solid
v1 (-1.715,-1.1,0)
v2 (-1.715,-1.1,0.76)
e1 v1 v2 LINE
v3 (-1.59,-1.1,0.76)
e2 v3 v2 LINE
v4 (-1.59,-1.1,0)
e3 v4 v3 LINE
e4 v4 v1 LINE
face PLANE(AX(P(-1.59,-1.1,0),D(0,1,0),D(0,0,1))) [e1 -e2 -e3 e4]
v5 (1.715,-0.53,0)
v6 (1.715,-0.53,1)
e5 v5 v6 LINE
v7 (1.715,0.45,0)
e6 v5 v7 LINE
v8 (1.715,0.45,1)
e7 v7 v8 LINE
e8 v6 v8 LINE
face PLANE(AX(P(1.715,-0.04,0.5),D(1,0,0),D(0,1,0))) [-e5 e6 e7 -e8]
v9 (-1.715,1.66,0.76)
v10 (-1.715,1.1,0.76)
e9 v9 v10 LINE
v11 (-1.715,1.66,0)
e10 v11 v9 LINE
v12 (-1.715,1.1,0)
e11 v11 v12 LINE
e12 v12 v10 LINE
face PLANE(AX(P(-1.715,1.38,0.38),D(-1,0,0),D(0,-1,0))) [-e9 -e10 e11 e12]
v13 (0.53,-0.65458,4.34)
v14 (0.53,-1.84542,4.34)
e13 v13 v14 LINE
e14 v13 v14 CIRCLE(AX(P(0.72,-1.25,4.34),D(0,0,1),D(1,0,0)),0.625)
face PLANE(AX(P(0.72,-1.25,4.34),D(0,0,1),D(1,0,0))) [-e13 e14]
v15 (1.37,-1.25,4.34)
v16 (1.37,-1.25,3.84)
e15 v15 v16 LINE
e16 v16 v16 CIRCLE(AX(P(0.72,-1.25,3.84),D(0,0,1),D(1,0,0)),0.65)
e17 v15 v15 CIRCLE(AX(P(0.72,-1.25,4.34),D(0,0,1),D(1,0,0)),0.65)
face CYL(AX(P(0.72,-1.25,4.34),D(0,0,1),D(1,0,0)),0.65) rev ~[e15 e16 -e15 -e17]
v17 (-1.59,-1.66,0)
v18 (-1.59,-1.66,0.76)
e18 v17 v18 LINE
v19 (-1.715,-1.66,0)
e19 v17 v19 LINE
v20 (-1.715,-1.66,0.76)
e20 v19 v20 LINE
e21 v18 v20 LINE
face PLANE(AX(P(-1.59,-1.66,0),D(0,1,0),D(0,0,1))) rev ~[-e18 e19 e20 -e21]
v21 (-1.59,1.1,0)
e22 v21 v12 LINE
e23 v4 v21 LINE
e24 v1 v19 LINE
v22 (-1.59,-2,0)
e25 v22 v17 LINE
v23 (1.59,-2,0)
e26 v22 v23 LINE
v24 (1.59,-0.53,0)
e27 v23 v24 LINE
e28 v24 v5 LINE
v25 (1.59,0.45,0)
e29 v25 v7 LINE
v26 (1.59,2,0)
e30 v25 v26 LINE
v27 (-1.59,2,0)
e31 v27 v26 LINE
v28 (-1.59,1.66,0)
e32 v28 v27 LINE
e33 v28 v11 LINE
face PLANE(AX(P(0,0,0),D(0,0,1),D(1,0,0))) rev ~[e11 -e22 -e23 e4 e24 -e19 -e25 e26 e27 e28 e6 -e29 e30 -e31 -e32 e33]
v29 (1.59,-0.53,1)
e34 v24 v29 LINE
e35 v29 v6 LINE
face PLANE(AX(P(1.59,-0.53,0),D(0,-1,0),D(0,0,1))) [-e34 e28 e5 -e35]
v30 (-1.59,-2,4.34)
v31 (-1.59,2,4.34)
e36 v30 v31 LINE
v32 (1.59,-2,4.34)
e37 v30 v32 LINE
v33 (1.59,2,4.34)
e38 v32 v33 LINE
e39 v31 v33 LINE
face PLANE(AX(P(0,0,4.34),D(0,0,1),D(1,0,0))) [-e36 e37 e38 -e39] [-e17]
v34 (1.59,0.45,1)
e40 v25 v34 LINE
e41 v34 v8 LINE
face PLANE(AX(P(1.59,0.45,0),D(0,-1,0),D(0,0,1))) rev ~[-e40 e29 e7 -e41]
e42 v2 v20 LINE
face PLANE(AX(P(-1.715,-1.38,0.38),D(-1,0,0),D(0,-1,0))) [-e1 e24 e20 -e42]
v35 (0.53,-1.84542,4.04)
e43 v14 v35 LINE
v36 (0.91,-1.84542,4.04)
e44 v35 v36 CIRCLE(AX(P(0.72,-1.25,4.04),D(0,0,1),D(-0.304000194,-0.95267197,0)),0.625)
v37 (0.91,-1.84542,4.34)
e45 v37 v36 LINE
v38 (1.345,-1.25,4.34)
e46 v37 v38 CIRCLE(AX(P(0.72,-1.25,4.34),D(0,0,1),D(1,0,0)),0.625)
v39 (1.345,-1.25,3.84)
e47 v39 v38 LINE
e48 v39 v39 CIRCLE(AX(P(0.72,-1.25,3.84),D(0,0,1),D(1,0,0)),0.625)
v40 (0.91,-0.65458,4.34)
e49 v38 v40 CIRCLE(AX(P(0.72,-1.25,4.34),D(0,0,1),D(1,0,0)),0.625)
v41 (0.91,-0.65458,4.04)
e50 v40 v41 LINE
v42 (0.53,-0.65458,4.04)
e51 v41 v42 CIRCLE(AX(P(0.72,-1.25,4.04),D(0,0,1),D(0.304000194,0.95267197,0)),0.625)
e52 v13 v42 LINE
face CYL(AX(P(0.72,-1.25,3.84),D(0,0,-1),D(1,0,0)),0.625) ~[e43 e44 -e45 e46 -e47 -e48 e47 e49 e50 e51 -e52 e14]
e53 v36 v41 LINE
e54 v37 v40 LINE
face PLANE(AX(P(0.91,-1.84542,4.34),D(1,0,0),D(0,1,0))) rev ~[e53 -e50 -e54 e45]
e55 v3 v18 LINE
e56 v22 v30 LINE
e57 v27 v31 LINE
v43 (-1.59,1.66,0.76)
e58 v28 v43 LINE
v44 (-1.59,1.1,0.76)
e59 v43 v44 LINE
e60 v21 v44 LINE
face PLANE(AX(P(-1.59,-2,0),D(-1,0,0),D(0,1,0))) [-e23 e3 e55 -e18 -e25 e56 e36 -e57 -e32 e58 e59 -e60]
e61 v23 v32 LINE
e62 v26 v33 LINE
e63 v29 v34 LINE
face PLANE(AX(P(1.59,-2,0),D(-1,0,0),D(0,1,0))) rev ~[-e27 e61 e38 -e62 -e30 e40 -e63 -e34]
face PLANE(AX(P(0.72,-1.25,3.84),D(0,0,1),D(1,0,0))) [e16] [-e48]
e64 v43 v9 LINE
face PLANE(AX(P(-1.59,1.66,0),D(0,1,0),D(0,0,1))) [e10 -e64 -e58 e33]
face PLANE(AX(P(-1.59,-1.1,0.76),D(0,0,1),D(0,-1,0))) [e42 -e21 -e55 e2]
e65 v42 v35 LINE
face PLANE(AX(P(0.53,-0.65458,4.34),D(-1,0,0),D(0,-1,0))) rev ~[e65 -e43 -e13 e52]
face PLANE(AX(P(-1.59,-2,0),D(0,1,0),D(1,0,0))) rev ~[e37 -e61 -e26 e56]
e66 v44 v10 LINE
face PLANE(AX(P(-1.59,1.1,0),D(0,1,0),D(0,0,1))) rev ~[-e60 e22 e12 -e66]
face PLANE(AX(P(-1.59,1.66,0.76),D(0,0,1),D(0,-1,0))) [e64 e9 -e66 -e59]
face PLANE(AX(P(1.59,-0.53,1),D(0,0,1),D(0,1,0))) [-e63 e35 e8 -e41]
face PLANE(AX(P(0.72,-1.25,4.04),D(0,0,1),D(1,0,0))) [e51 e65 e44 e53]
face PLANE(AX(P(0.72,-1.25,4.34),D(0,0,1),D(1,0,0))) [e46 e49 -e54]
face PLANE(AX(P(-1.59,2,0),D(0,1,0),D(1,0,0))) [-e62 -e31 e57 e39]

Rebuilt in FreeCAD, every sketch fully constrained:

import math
import FreeCAD as App
import Part
import Sketcher
from FreeCAD import Vector
Q = App.Units.Quantity


def add_polygon(sketch, points):
    """Adds a closed chain of lines whose ends are joined by coincident constraints."""
    first, n = sketch.GeometryCount, len(points)
    for a, b in zip(points, points[1:] + points[:1]):
        sketch.addGeometry(Part.LineSegment(App.Vector(*a, 0), App.Vector(*b, 0)), False)
    for i in range(n):
        sketch.addConstraint(Sketcher.Constraint("Coincident", first + i, 2, first + (i + 1) % n, 1))

doc = App.newDocument("Part")
params = doc.addObject("Spreadsheet::Sheet", "Params")
for row, (alias, value) in enumerate([
    ("sketch1_height", "4 mm"),
    ("sketch1_width", "3.18 mm"),
    ("pad1_length", "4.34 mm"),
    ("sketch2_height", "1 mm"),
    ("sketch2_width", "0.98 mm"),
    ("pad2_length", "0.125 mm"),
    ("sketch3_width", "0.56 mm"),
    ("sketch3_height", "0.76 mm"),
    ("pad3_length", "0.125 mm"),
    ("sketch4_diameter", "1.3 mm"),
    ("pocket1_length", "0.5 mm"),
    ("sketch5_diameter", "1.25 mm"),
    ("pad4_length", "0.5 mm"),
    ("pocket2_length", "0.3 mm"),
], start=1):
    params.set(f"A{row}", alias)
    params.set(f"B{row}", "=" + value)
    params.setAlias(f"B{row}", alias)

body = doc.addObject("PartDesign::Body", "Body")

# Sketch on XY plane
sketch1 = doc.addObject("Sketcher::SketchObject", "Sketch")
body.addObject(sketch1)
sketch1.AttachmentSupport = (doc.XY_Plane, [""])
sketch1.MapMode = "FlatFace"
add_polygon(sketch1, [(-1.6, 2), (-1.6, -2), (1.6, -2), (1.6, 2)])  # lines 0-3
sketch1.addConstraint([
    Sketcher.Constraint("Vertical", 0),
    Sketcher.Constraint("Horizontal", 1),
    Sketcher.Constraint("Vertical", 2),
    Sketcher.Constraint("Horizontal", 3),
    Sketcher.Constraint("Symmetric", 0, 2, 2, 2, -1, 1),
    Sketcher.Constraint("DistanceY", 0, 2, 0, 1, Q("4 mm")),
    Sketcher.Constraint("DistanceX", 1, 1, 1, 2, Q("3.18 mm")),
])
sketch1.setExpression("Constraints[9]", "Params.sketch1_height")
sketch1.setExpression("Constraints[10]", "Params.sketch1_width")
pad1 = doc.addObject("PartDesign::Pad", "Pad")
body.addObject(pad1)
pad1.Profile = sketch1
pad1.setExpression("Length", "Params.pad1_length")

# Sketch on YZ plane
sketch2 = doc.addObject("Sketcher::SketchObject", "Sketch001")
body.addObject(sketch2)
sketch2.AttachmentSupport = (doc.YZ_Plane, [""])
sketch2.MapMode = "FlatFace"
sketch2.AttachmentOffset = App.Placement(Vector(0, 0, 1.59), App.Rotation())
add_polygon(sketch2, [(-0.5, 1), (-0.5, 0), (0.5, 0), (0.5, 1)])  # lines 0-3
sketch2.addConstraint([
    Sketcher.Constraint("Vertical", 0),
    Sketcher.Constraint("Horizontal", 1),
    Sketcher.Constraint("Vertical", 2),
    Sketcher.Constraint("Horizontal", 3),
    Sketcher.Constraint("PointOnObject", 0, 2, -1),
    Sketcher.Constraint("DistanceY", 0, 2, 0, 1, Q("1 mm")),
    Sketcher.Constraint("DistanceX", 1, 1, 1, 2, Q("0.98 mm")),
    Sketcher.Constraint("DistanceX", 0, 2, -1, 1, Q("0.53 mm")),
])
sketch2.setExpression("Constraints[9]", "Params.sketch2_height")
sketch2.setExpression("Constraints[10]", "Params.sketch2_width")
pad2 = doc.addObject("PartDesign::Pad", "Pad001")
body.addObject(pad2)
pad2.Profile = sketch2
pad2.setExpression("Length", "Params.pad2_length")

# Sketch on YZ plane
sketch3 = doc.addObject("Sketcher::SketchObject", "Sketch002")
body.addObject(sketch3)
sketch3.AttachmentSupport = (doc.YZ_Plane, [""])
sketch3.MapMode = "FlatFace"
sketch3.AttachmentOffset = App.Placement(Vector(0, 0, -1.59), App.Rotation())
add_polygon(sketch3, [(1.7, 0.8), (1.7, 0), (1.1, 0), (1.1, 0.8)])  # lines 0-3
add_polygon(sketch3, [(-1.1, 0.8), (-1.1, 0), (-1.7, 0), (-1.7, 0.8)])  # lines 4-7
sketch3.addConstraint([
    Sketcher.Constraint("Vertical", 0),
    Sketcher.Constraint("Horizontal", 1),
    Sketcher.Constraint("Vertical", 2),
    Sketcher.Constraint("Horizontal", 3),
    Sketcher.Constraint("Vertical", 4),
    Sketcher.Constraint("Horizontal", 5),
    Sketcher.Constraint("Vertical", 6),
    Sketcher.Constraint("Horizontal", 7),
    Sketcher.Constraint("Symmetric", 1, 2, 4, 2, -1, 1),
    Sketcher.Constraint("Symmetric", 0, 2, 5, 2, -2),
    Sketcher.Constraint("Horizontal", 3, 2, 6, 2),
    Sketcher.Constraint("DistanceX", 1, 2, 1, 1, Q("0.56 mm")),
    Sketcher.Constraint("DistanceY", 0, 2, 0, 1, Q("0.76 mm")),
    Sketcher.Constraint("DistanceX", -1, 1, 1, 2, Q("1.1 mm")),
])
sketch3.setExpression("Constraints[19]", "Params.sketch3_width")
sketch3.setExpression("Constraints[20]", "Params.sketch3_height")
pad3 = doc.addObject("PartDesign::Pad", "Pad002")
body.addObject(pad3)
pad3.Profile = sketch3
pad3.setExpression("Length", "Params.pad3_length")
pad3.Reversed = True

# Sketch on XY plane
sketch4 = doc.addObject("Sketcher::SketchObject", "Sketch003")
body.addObject(sketch4)
sketch4.AttachmentSupport = (doc.XY_Plane, [""])
sketch4.MapMode = "FlatFace"
sketch4.AttachmentOffset = App.Placement(Vector(0, 0, 4.34), App.Rotation())
sketch4.addGeometry(Part.Circle(Vector(0.7, -1.2, 0), Vector(0, 0, 1), 0.7), False)
sketch4.addConstraint([
    Sketcher.Constraint("Diameter", 0, Q("1.3 mm")),
    Sketcher.Constraint("DistanceX", -1, 1, 0, 3, Q("0.72 mm")),
    Sketcher.Constraint("DistanceY", 0, 3, -1, 1, Q("1.25 mm")),
])
sketch4.setExpression("Constraints[0]", "Params.sketch4_diameter")
pocket1 = doc.addObject("PartDesign::Pocket", "Pocket")
body.addObject(pocket1)
pocket1.Profile = sketch4
pocket1.setExpression("Length", "Params.pocket1_length")

# Sketch on XY plane
sketch5 = doc.addObject("Sketcher::SketchObject", "Sketch004")
body.addObject(sketch5)
sketch5.AttachmentSupport = (doc.XY_Plane, [""])
sketch5.MapMode = "FlatFace"
sketch5.AttachmentOffset = App.Placement(Vector(0, 0, 3.84), App.Rotation())
sketch5.addGeometry(Part.Circle(Vector(0.7, -1.2, 0), Vector(0, 0, 1), 0.6), False)
sketch5.addConstraint([
    Sketcher.Constraint("Diameter", 0, Q("1.25 mm")),
    Sketcher.Constraint("DistanceX", -1, 1, 0, 3, Q("0.72 mm")),
    Sketcher.Constraint("DistanceY", 0, 3, -1, 1, Q("1.25 mm")),
])
sketch5.setExpression("Constraints[0]", "Params.sketch5_diameter")
pad4 = doc.addObject("PartDesign::Pad", "Pad003")
body.addObject(pad4)
pad4.Profile = sketch5
pad4.setExpression("Length", "Params.pad4_length")

# Sketch on XY plane
sketch6 = doc.addObject("Sketcher::SketchObject", "Sketch005")
body.addObject(sketch6)
sketch6.AttachmentSupport = (doc.XY_Plane, [""])
sketch6.MapMode = "FlatFace"
sketch6.AttachmentOffset = App.Placement(Vector(0, 0, 4.34), App.Rotation())
sketch6.addGeometry([
    Part.LineSegment(Vector(0.53, -0.65, 0), Vector(0.53, -1.85, 0)),
    Part.ArcOfCircle(Part.Circle(Vector(0.72, -1.25, 0), Vector(0, 0, 1), 0.62), math.radians(-108), math.radians(-72)),
    Part.LineSegment(Vector(0.91, -1.85, 0), Vector(0.91, -0.65, 0)),
    Part.ArcOfCircle(Part.Circle(Vector(0.72, -1.25, 0), Vector(0, 0, 1), 0.62), math.radians(72), math.radians(108)),
], False)
sketch6.addConstraint([
    Sketcher.Constraint("Coincident", 0, 2, 1, 1),
    Sketcher.Constraint("Coincident", 1, 2, 2, 1),
    Sketcher.Constraint("Coincident", 2, 2, 3, 1),
    Sketcher.Constraint("Coincident", 3, 2, 0, 1),
    Sketcher.Constraint("Vertical", 0),
    Sketcher.Constraint("Vertical", 2),
    Sketcher.Constraint("Coincident", 3, 3, 1, 3),
    Sketcher.Constraint("Equal", 1, 3),
    Sketcher.Constraint("Horizontal", 0, 2, 1, 2),
    Sketcher.Constraint("Radius", 1, Q("0.625 mm")),
    Sketcher.Constraint("DistanceX", -1, 1, 1, 3, Q("0.72 mm")),
    Sketcher.Constraint("DistanceY", 1, 3, -1, 1, Q("1.25 mm")),
    Sketcher.Constraint("DistanceX", -1, 1, 0, 2, Q("0.53 mm")),
])
pocket2 = doc.addObject("PartDesign::Pocket", "Pocket001")
body.addObject(pocket2)
pocket2.Profile = sketch6
pocket2.setExpression("Length", "Params.pocket2_length")

doc.recompute()
